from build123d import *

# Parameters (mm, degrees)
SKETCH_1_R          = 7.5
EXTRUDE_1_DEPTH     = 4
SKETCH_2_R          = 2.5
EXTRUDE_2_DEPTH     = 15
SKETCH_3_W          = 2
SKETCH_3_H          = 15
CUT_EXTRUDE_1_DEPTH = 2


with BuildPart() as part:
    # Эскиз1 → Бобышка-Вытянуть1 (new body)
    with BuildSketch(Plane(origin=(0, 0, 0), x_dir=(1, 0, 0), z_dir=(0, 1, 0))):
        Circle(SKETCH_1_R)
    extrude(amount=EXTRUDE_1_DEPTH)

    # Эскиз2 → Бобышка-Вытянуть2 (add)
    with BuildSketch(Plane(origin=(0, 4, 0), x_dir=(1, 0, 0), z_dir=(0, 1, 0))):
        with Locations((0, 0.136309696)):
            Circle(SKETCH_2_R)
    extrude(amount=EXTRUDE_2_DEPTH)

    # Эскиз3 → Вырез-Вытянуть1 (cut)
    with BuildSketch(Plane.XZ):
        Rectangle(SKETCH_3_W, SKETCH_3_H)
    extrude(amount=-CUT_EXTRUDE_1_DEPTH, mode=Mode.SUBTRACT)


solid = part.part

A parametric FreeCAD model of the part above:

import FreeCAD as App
import Part
import Sketcher

V = App.Vector


def add_polygon(sketch, points):
    """Adds a closed chain of lines whose ends are joined by coincident constraints."""
    first, n = sketch.GeometryCount, len(points)
    for a, b in zip(points, points[1:] + points[:1]):
        sketch.addGeometry(Part.LineSegment(App.Vector(*a, 0), App.Vector(*b, 0)), False)
    for i in range(n):
        sketch.addConstraint(Sketcher.Constraint("Coincident", first + i, 2, first + (i + 1) % n, 1))

doc = App.newDocument("Part")
body = doc.addObject("PartDesign::Body", "Body")

sketch1 = body.newObject("Sketcher::SketchObject", "Sketch")
sketch1.AttachmentSupport = (doc.getObject("XZ_Plane"), [""])
sketch1.MapMode = "FlatFace"
sketch1.addGeometry(Part.Circle(V(0, 0, 0), V(0, 0, 1), 8), False)
sketch1.addConstraint([
    Sketcher.Constraint("Coincident", 0, 3, -1, 1),
    Sketcher.Constraint("Diameter", 0, 15.0),
])
pad1 = body.newObject("PartDesign::Pad", "Pad")
pad1.Profile = sketch1
pad1.Length = 4
pad1.Reversed = True

sketch2 = body.newObject("Sketcher::SketchObject", "Sketch001")
sketch2.AttachmentSupport = (doc.getObject("XZ_Plane"), [""])
sketch2.MapMode = "FlatFace"
sketch2.AttachmentOffset = App.Placement(V(0, 0, -4), App.Rotation())
sketch2.addGeometry(Part.Circle(V(0, -0.1, 0), V(0, 0, 1), 2.5), False)
sketch2.addConstraint([
    Sketcher.Constraint("PointOnObject", 0, 3, -2),
    Sketcher.Constraint("Diameter", 0, 5.0),
    Sketcher.Constraint("DistanceY", 0, 3, -1, 1, 0.13631),
])
pad2 = body.newObject("PartDesign::Pad", "Pad001")
pad2.Profile = sketch2
pad2.Length = 15
pad2.Reversed = True

sketch3 = body.newObject("Sketcher::SketchObject", "Sketch002")
sketch3.AttachmentSupport = (doc.getObject("XZ_Plane"), [""])
sketch3.MapMode = "FlatFace"
add_polygon(sketch3, [(-1, 7.5), (-1, -7.5), (1, -7.5), (1, 7.5)])
sketch3.addConstraint([
    Sketcher.Constraint("Vertical", 0),
    Sketcher.Constraint("Horizontal", 1),
    Sketcher.Constraint("Vertical", 2),
    Sketcher.Constraint("Horizontal", 3),
    Sketcher.Constraint("Symmetric", 0, 2, 2, 2, -1, 1),
    Sketcher.Constraint("DistanceX", 1, 1, 1, 2, 2.0),
    Sketcher.Constraint("DistanceY", 0, 2, 0, 1, 15.0),
])
pocket1 = body.newObject("PartDesign::Pocket", "Pocket")
pocket1.Profile = sketch3
pocket1.Length = 2

doc.recompute()
